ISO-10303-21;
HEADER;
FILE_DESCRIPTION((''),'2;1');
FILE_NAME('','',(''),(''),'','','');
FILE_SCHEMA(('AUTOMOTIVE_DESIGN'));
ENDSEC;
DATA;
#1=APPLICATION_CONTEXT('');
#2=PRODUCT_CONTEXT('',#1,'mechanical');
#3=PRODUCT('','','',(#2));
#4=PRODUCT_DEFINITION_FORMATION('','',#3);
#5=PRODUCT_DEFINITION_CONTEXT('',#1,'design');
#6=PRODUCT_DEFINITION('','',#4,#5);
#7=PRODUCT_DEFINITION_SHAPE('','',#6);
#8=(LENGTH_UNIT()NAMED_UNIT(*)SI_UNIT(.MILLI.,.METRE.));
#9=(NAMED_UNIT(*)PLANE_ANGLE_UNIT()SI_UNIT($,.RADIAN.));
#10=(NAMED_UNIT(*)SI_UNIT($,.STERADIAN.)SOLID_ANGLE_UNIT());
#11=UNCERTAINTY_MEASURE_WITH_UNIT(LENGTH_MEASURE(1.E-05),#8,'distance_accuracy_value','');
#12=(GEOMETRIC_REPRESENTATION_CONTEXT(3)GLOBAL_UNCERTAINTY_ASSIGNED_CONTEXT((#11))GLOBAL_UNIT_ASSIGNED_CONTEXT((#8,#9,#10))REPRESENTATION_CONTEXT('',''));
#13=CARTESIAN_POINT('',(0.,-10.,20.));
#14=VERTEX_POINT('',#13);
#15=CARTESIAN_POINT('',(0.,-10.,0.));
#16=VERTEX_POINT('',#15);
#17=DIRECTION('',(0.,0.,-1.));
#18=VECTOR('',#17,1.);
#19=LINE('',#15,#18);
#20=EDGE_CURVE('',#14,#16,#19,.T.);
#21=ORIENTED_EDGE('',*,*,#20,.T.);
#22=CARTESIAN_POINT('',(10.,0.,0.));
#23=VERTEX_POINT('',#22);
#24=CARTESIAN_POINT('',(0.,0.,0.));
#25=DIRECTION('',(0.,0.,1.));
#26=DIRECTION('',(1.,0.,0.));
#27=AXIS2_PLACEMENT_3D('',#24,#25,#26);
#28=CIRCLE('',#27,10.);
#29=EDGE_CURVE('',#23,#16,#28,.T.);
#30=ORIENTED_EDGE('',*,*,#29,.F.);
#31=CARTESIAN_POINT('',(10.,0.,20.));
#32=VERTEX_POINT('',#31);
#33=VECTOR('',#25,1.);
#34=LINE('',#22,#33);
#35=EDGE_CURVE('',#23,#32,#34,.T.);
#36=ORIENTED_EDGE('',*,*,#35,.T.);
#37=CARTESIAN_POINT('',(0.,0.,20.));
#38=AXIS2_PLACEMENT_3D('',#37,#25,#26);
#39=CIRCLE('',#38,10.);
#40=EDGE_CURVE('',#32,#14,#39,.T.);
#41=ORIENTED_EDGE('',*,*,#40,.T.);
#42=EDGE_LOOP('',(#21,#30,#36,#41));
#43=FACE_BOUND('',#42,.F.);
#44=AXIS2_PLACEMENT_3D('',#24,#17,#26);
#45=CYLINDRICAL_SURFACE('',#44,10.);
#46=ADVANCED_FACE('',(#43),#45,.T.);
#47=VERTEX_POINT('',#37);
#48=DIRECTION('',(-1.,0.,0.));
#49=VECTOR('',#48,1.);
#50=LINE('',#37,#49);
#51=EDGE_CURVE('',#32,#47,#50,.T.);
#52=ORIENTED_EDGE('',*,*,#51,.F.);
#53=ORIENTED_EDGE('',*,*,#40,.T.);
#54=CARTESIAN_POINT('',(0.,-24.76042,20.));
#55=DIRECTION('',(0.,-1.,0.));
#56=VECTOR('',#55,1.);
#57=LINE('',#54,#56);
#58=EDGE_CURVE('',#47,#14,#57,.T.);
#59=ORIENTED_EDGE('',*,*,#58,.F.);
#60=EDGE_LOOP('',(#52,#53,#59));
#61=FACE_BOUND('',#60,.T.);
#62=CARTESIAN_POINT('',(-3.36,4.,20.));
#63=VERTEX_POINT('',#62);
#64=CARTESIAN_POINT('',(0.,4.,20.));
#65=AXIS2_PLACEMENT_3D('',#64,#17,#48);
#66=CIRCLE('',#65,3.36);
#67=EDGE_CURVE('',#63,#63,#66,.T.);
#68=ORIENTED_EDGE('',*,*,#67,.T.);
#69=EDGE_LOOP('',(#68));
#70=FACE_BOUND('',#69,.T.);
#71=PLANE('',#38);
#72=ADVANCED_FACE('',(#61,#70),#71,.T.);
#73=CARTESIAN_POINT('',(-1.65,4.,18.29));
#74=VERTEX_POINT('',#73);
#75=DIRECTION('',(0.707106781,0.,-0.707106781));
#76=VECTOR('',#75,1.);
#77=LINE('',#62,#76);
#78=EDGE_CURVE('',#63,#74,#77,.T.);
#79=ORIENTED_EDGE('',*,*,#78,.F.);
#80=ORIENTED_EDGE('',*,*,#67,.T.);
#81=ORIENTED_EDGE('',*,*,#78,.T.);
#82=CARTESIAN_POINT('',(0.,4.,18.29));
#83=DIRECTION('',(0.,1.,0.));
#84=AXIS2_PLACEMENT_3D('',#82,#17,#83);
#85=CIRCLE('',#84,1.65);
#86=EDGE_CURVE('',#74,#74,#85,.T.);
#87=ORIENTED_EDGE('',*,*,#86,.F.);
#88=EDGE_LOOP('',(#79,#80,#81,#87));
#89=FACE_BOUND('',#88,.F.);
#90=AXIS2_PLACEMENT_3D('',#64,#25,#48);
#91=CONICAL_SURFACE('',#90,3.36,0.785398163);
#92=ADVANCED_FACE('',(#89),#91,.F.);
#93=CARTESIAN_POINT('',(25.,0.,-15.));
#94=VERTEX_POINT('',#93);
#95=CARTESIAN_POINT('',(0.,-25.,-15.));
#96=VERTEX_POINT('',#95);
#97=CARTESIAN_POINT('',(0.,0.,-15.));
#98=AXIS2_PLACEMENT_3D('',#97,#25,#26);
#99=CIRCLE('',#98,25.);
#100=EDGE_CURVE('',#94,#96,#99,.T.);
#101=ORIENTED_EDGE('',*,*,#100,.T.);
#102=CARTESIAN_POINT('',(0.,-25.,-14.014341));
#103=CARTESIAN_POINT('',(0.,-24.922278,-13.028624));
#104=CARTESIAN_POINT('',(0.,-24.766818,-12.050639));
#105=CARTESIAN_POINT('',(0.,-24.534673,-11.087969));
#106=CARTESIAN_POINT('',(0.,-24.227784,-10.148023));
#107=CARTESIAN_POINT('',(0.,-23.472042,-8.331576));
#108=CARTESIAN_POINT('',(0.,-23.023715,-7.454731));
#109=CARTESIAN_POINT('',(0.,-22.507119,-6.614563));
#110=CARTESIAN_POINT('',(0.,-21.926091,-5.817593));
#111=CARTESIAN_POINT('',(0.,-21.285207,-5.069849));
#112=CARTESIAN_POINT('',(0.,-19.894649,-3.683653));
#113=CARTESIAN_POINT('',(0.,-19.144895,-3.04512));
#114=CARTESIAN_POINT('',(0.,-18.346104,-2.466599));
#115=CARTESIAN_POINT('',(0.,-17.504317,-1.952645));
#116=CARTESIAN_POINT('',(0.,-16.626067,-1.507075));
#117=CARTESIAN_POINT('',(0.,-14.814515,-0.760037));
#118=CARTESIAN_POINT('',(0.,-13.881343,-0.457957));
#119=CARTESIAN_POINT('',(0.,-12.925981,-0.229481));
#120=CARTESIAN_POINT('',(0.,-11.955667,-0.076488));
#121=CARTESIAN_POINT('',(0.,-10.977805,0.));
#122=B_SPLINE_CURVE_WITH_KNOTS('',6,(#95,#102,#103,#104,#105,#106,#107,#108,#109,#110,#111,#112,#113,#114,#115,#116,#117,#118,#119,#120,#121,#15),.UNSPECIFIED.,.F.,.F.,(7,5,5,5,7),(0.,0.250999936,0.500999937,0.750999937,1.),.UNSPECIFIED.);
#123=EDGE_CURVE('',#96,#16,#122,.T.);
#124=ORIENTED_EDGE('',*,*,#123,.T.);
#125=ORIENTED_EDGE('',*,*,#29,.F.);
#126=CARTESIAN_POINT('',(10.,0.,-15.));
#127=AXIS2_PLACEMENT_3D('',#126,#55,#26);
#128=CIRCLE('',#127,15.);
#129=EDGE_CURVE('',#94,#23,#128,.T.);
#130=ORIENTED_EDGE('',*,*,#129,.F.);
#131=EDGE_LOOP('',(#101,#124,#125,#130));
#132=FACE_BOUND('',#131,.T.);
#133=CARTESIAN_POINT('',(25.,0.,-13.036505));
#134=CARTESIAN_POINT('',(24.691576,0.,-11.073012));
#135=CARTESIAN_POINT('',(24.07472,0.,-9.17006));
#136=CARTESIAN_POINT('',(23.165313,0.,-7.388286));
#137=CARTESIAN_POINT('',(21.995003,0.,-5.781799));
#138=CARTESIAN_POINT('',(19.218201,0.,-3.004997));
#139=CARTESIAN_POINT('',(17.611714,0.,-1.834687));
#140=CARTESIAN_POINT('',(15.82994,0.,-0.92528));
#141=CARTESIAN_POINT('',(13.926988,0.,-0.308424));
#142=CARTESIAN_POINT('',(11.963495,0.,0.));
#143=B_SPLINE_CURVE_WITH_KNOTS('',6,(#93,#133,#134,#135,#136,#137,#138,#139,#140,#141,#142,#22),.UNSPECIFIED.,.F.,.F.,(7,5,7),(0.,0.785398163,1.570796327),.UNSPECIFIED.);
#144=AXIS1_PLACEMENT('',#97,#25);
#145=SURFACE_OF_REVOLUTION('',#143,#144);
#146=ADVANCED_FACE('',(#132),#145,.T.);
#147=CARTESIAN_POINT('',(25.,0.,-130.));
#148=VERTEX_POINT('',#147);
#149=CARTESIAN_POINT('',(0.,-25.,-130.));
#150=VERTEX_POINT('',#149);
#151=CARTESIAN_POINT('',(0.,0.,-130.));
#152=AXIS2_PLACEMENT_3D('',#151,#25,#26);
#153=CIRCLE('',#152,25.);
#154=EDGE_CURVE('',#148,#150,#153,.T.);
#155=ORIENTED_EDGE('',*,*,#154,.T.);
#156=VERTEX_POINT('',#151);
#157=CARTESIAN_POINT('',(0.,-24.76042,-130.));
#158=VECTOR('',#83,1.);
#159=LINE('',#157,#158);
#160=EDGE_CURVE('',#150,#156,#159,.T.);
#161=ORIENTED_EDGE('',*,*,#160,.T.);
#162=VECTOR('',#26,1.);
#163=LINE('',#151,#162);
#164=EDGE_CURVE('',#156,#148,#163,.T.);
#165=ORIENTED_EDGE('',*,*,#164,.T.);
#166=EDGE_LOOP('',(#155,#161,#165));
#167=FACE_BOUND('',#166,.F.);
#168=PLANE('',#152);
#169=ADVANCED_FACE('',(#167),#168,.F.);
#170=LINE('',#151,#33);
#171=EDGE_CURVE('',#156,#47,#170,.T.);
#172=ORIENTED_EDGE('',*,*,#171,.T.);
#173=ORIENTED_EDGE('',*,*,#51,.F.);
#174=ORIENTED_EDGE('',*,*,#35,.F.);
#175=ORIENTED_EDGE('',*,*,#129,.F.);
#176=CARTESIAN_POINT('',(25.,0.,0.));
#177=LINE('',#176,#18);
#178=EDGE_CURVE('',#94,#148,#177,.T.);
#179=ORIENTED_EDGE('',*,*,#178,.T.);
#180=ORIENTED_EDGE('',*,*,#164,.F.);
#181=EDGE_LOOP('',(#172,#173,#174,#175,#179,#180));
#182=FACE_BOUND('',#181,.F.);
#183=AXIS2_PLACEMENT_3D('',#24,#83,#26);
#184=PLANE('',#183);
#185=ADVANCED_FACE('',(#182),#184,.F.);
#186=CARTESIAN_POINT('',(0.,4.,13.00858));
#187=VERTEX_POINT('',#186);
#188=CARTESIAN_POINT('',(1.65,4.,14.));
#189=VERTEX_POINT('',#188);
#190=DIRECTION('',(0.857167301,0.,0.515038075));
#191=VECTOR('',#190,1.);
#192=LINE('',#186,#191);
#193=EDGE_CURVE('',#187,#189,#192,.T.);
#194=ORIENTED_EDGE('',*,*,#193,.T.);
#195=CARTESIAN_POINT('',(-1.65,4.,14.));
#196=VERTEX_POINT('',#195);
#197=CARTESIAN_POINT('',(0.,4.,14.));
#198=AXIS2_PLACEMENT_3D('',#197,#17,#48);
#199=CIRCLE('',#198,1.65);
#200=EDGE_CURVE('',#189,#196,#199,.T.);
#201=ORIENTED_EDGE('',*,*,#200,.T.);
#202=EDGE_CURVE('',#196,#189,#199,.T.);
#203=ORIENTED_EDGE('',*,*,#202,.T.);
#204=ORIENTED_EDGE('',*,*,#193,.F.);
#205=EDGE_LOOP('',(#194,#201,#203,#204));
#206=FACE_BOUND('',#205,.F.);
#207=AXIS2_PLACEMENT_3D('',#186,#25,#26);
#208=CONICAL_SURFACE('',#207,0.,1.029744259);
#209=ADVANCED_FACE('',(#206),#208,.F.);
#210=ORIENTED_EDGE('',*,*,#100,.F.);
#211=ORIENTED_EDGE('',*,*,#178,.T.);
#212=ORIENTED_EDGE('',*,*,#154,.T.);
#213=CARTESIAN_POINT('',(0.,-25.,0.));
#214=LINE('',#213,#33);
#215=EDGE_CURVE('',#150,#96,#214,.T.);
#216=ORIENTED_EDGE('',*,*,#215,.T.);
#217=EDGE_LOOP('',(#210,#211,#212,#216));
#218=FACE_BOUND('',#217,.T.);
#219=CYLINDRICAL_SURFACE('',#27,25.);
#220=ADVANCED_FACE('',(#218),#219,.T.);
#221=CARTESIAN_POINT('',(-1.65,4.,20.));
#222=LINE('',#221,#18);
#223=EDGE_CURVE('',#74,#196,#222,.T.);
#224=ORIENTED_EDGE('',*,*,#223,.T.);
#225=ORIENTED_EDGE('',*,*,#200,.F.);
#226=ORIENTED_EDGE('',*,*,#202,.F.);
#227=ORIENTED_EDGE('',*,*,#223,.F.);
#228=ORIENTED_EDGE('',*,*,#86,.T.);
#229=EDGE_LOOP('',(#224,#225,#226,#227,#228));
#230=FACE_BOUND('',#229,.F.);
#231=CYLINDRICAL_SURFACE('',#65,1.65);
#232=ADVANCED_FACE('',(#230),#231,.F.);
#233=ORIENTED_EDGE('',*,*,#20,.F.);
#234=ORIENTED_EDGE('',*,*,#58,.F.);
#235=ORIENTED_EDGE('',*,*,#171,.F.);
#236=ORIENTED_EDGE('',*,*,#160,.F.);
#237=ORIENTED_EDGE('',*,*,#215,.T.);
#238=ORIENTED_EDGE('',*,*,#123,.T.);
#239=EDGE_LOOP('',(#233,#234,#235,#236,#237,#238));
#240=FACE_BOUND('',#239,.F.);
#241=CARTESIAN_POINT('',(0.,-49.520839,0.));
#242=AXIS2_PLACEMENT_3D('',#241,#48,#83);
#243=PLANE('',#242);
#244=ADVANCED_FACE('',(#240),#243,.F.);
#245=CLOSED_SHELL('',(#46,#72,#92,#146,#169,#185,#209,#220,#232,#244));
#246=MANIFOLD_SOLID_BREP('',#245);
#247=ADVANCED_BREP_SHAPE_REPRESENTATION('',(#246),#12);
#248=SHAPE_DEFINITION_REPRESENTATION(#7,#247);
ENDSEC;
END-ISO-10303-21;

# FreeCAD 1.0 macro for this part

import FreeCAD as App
import Part
import Sketcher
from FreeCAD import Vector
Q = App.Units.Quantity


def edges_at(feature, points):
    """Names of the edges that pass closest to the given points."""
    edges = feature.Shape.Edges
    near = lambda p: min(range(len(edges)), key=lambda i: edges[i].distToShape(Part.Vertex(*p))[0])
    return sorted({f"Edge{near(p) + 1}" for p in points})


def add_polygon(sketch, points):
    """Adds a closed chain of lines whose ends are joined by coincident constraints."""
    first, n = sketch.GeometryCount, len(points)
    for a, b in zip(points, points[1:] + points[:1]):
        sketch.addGeometry(Part.LineSegment(App.Vector(*a, 0), App.Vector(*b, 0)), False)
    for i in range(n):
        sketch.addConstraint(Sketcher.Constraint("Coincident", first + i, 2, first + (i + 1) % n, 1))

doc = App.newDocument("Part")
body = doc.addObject("PartDesign::Body", "Body")

# Sketch on XY plane
sketch1 = body.newObject("Sketcher::SketchObject", "Sketch")
sketch1.AttachmentSupport = (doc.getObject("XY_Plane"), [""])
sketch1.MapMode = "FlatFace"
sketch1.addGeometry(Part.Circle(Vector(0, 0, 0), Vector(0, 0, 1), 25), False)
sketch1.addConstraint([
    Sketcher.Constraint("Coincident", 0, 3, -1, 1),
    Sketcher.Constraint("Diameter", 0, Q("50 mm")),
])
pad1 = body.newObject("PartDesign::Pad", "Pad")
pad1.Profile = sketch1
pad1.Length = 130
pad1.Reversed = True
doc.recompute()

fillet = body.newObject("PartDesign::Fillet", "Fillet")
fillet.Base = (pad1, edges_at(pad1, [(-25, 0, 0)]))
fillet.Radius = 15

# Sketch on XY plane
sketch2 = body.newObject("Sketcher::SketchObject", "Sketch001")
sketch2.AttachmentSupport = (doc.getObject("XY_Plane"), [""])
sketch2.MapMode = "FlatFace"
sketch2.addGeometry(Part.Circle(Vector(0, 0, 0), Vector(0, 0, 1), 10), False)
sketch2.addConstraint([
    Sketcher.Constraint("Coincident", 0, 3, -1, 1),
    Sketcher.Constraint("Diameter", 0, Q("20 mm")),
])
pad2 = body.newObject("PartDesign::Pad", "Pad001")
pad2.Profile = sketch2
pad2.Length = 20

# Sketch on XY plane
sketch3 = body.newObject("Sketcher::SketchObject", "Sketch002")
sketch3.AttachmentSupport = (doc.getObject("XY_Plane"), [""])
sketch3.MapMode = "FlatFace"
add_polygon(sketch3, [(0, 0), (0, -49.520839), (74.853942, -49.520839), (74.853942, 0)])  # lines 0-3
sketch3.addConstraint([
    Sketcher.Constraint("Vertical", 0),
    Sketcher.Constraint("Horizontal", 1),
    Sketcher.Constraint("Vertical", 2),
    Sketcher.Constraint("Horizontal", 3),
    Sketcher.Constraint("Coincident", 3, 2, -1, 1),
    Sketcher.Constraint("DistanceX", 1, 1, 1, 2, Q("74.853942 mm")),
    Sketcher.Constraint("DistanceY", 0, 2, 0, 1, Q("49.520839 mm")),
])
pocket1 = body.newObject("PartDesign::Pocket", "Pocket")
pocket1.Profile = sketch3
pocket1.Type = "ThroughAll"
pocket1.Midplane = True

# Sketch on XY plane
sketch4 = body.newObject("Sketcher::SketchObject", "Sketch003")
sketch4.AttachmentSupport = (doc.getObject("XY_Plane"), [""])
sketch4.MapMode = "FlatFace"
sketch4.AttachmentOffset = App.Placement(Vector(0, 0, 20), App.Rotation())
sketch4.addGeometry(Part.Circle(Vector(0, 4, 0), Vector(0, 0, 1), 1.65), False)
sketch4.addConstraint([
    Sketcher.Constraint("PointOnObject", 0, 3, -2),
    Sketcher.Constraint("Diameter", 0, Q("3.3 mm")),
    Sketcher.Constraint("DistanceY", -1, 1, 0, 3, Q("4 mm")),
])
doc.recompute()
hole = body.newObject("PartDesign::Hole", "Hole")
hole.Profile = sketch4
hole.ThreadType = "None"
hole.Diameter = 3.3
hole.DepthType = "Dimension"
hole.Depth = 6
hole.DrillPoint = "Angled"
hole.DrillPointAngle = 118
hole.HoleCutType = "Countersink"
hole.HoleCutDiameter = 6.72
hole.HoleCutCountersinkAngle = 90

doc.recompute()
